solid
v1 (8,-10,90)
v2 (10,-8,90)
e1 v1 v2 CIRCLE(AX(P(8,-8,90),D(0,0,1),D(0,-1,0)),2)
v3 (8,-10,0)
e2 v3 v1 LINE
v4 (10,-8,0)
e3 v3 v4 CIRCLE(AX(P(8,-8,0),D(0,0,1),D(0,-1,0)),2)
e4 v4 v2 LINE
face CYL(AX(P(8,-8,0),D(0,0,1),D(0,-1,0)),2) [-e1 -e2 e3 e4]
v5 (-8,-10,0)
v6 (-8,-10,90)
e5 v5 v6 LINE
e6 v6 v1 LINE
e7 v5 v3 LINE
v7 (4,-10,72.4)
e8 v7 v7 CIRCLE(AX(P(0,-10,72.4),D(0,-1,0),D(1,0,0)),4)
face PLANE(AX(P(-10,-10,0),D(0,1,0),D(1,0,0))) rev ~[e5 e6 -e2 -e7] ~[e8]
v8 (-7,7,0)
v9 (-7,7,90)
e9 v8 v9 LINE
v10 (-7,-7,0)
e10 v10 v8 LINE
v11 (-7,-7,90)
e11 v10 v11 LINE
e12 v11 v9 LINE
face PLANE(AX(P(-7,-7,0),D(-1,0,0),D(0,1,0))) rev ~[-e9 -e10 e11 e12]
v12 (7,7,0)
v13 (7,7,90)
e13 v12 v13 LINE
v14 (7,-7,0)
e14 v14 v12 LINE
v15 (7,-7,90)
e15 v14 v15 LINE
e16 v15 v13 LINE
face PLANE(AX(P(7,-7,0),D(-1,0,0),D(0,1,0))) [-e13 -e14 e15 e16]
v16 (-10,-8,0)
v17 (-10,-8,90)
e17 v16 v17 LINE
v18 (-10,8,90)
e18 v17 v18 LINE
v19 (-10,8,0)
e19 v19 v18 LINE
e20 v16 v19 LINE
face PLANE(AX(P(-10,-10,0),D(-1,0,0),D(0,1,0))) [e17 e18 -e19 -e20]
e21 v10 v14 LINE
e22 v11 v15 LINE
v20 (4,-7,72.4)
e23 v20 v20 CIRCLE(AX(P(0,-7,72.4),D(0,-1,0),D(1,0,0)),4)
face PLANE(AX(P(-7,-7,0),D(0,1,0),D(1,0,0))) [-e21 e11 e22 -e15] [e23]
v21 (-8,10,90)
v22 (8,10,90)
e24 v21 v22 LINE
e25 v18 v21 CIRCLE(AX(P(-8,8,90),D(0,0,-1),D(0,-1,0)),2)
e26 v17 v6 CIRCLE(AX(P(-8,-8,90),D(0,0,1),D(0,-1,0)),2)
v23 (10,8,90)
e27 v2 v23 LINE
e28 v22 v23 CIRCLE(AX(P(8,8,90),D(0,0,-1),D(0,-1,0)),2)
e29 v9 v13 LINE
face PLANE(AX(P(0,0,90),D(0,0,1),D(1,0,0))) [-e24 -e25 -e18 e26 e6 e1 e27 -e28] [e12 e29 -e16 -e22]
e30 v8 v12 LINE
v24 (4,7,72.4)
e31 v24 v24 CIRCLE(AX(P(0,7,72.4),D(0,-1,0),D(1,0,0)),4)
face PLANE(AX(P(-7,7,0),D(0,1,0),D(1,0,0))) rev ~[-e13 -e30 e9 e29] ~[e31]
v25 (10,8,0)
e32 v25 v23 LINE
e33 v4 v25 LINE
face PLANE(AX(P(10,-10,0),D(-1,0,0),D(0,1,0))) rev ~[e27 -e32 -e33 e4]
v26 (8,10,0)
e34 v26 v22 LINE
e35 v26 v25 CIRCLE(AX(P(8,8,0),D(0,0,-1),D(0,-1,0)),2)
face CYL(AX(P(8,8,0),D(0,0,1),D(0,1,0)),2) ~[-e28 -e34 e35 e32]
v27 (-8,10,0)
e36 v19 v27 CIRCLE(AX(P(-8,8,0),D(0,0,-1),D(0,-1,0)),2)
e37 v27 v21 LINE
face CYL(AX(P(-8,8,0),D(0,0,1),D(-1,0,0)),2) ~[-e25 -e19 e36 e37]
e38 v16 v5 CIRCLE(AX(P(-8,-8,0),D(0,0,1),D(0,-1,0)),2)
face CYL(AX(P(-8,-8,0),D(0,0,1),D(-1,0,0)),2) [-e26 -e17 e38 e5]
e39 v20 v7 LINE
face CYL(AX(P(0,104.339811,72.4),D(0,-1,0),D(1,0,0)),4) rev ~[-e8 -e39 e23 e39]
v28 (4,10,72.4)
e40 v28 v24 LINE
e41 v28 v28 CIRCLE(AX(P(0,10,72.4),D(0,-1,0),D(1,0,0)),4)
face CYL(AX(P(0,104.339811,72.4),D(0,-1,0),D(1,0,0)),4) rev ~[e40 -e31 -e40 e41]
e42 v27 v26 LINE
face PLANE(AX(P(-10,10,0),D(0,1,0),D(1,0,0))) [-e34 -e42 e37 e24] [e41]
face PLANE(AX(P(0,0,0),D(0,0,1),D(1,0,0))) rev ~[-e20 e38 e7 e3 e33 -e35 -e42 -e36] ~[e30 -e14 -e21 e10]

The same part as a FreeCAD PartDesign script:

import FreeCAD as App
import Part
import Sketcher
from FreeCAD import Vector
Q = App.Units.Quantity


def edges_at(feature, points):
    """Names of the edges that pass closest to the given points."""
    edges = feature.Shape.Edges
    near = lambda p: min(range(len(edges)), key=lambda i: edges[i].distToShape(Part.Vertex(*p))[0])
    return sorted({f"Edge{near(p) + 1}" for p in points})

doc = App.newDocument("Part")
body = doc.addObject("PartDesign::Body", "Body")

# Sketch on XY plane
sketch1 = doc.addObject("Sketcher::SketchObject", "Sketch")
body.addObject(sketch1)
sketch1.AttachmentSupport = (doc.XY_Plane, [""])
sketch1.MapMode = "FlatFace"
sketch1.addGeometry(Part.LineSegment(Vector(-10, 10, 0), Vector(-10, -10, 0)), False)
sketch1.addGeometry(Part.LineSegment(Vector(-10, -10, 0), Vector(10, -10, 0)), False)
sketch1.addGeometry(Part.LineSegment(Vector(10, -10, 0), Vector(10, 10, 0)), False)
sketch1.addGeometry(Part.LineSegment(Vector(10, 10, 0), Vector(-10, 10, 0)), False)
sketch1.addGeometry(Part.LineSegment(Vector(7, -7, 0), Vector(-7, -7, 0)), False)
sketch1.addGeometry(Part.LineSegment(Vector(-7, -7, 0), Vector(-7, 7, 0)), False)
sketch1.addGeometry(Part.LineSegment(Vector(-7, 7, 0), Vector(7, 7, 0)), False)
sketch1.addGeometry(Part.LineSegment(Vector(7, 7, 0), Vector(7, -7, 0)), False)
sketch1.addConstraint(Sketcher.Constraint("Coincident", 0, 2, 1, 1))
sketch1.addConstraint(Sketcher.Constraint("Coincident", 1, 2, 2, 1))
sketch1.addConstraint(Sketcher.Constraint("Coincident", 2, 2, 3, 1))
sketch1.addConstraint(Sketcher.Constraint("Coincident", 3, 2, 0, 1))
sketch1.addConstraint(Sketcher.Constraint("Coincident", 4, 2, 5, 1))
sketch1.addConstraint(Sketcher.Constraint("Coincident", 5, 2, 6, 1))
sketch1.addConstraint(Sketcher.Constraint("Coincident", 6, 2, 7, 1))
sketch1.addConstraint(Sketcher.Constraint("Coincident", 7, 2, 4, 1))
sketch1.addConstraint(Sketcher.Constraint("Vertical", 0))
sketch1.addConstraint(Sketcher.Constraint("Horizontal", 1))
sketch1.addConstraint(Sketcher.Constraint("Vertical", 2))
sketch1.addConstraint(Sketcher.Constraint("Horizontal", 3))
sketch1.addConstraint(Sketcher.Constraint("Horizontal", 4))
sketch1.addConstraint(Sketcher.Constraint("Vertical", 5))
sketch1.addConstraint(Sketcher.Constraint("Horizontal", 6))
sketch1.addConstraint(Sketcher.Constraint("Vertical", 7))
sketch1.addConstraint(Sketcher.Constraint("Symmetric", 0, 2, 2, 2, -1, 1))
sketch1.addConstraint(Sketcher.Constraint("Symmetric", 4, 2, 6, 2, -1, 1))
sketch1.addConstraint(Sketcher.Constraint("Equal", 3, 0))
sketch1.addConstraint(Sketcher.Constraint("Equal", 6, 5))
sketch1.addConstraint(Sketcher.Constraint("DistanceX", 1, 1, 1, 2, Q("20 mm")))
sketch1.addConstraint(Sketcher.Constraint("DistanceX", 4, 2, 4, 1, Q("14 mm")))
pad1 = doc.addObject("PartDesign::Pad", "Pad")
body.addObject(pad1)
pad1.Profile = sketch1
pad1.Length = 90
doc.recompute()

fillet = doc.addObject("PartDesign::Fillet", "Fillet")
body.addObject(fillet)
fillet.Base = (pad1, edges_at(pad1, [
    (10, -10, 45),
    (10, 10, 45),
    (-10, -10, 45),
    (-10, 10, 45),
]))
fillet.Radius = 2

# Sketch on XZ plane
sketch2 = doc.addObject("Sketcher::SketchObject", "Sketch001")
body.addObject(sketch2)
sketch2.AttachmentSupport = (doc.XZ_Plane, [""])
sketch2.MapMode = "FlatFace"
sketch2.AttachmentOffset = App.Placement(Vector(0, 0, -10), App.Rotation())
sketch2.addGeometry(Part.Circle(Vector(0, 72.4, 0), Vector(0, 0, 1), 4), False)
sketch2.addConstraint(Sketcher.Constraint("PointOnObject", 0, 3, -2))
sketch2.addConstraint(Sketcher.Constraint("Diameter", 0, Q("8 mm")))
sketch2.addConstraint(Sketcher.Constraint("DistanceY", -1, 1, 0, 3, Q("72.4 mm")))
doc.recompute()
hole = doc.addObject("PartDesign::Hole", "Hole")
body.addObject(hole)
hole.Profile = sketch2
hole.ThreadType = "None"
hole.Diameter = 8
hole.DepthType = "ThroughAll"
hole.Reversed = True

doc.recompute()
